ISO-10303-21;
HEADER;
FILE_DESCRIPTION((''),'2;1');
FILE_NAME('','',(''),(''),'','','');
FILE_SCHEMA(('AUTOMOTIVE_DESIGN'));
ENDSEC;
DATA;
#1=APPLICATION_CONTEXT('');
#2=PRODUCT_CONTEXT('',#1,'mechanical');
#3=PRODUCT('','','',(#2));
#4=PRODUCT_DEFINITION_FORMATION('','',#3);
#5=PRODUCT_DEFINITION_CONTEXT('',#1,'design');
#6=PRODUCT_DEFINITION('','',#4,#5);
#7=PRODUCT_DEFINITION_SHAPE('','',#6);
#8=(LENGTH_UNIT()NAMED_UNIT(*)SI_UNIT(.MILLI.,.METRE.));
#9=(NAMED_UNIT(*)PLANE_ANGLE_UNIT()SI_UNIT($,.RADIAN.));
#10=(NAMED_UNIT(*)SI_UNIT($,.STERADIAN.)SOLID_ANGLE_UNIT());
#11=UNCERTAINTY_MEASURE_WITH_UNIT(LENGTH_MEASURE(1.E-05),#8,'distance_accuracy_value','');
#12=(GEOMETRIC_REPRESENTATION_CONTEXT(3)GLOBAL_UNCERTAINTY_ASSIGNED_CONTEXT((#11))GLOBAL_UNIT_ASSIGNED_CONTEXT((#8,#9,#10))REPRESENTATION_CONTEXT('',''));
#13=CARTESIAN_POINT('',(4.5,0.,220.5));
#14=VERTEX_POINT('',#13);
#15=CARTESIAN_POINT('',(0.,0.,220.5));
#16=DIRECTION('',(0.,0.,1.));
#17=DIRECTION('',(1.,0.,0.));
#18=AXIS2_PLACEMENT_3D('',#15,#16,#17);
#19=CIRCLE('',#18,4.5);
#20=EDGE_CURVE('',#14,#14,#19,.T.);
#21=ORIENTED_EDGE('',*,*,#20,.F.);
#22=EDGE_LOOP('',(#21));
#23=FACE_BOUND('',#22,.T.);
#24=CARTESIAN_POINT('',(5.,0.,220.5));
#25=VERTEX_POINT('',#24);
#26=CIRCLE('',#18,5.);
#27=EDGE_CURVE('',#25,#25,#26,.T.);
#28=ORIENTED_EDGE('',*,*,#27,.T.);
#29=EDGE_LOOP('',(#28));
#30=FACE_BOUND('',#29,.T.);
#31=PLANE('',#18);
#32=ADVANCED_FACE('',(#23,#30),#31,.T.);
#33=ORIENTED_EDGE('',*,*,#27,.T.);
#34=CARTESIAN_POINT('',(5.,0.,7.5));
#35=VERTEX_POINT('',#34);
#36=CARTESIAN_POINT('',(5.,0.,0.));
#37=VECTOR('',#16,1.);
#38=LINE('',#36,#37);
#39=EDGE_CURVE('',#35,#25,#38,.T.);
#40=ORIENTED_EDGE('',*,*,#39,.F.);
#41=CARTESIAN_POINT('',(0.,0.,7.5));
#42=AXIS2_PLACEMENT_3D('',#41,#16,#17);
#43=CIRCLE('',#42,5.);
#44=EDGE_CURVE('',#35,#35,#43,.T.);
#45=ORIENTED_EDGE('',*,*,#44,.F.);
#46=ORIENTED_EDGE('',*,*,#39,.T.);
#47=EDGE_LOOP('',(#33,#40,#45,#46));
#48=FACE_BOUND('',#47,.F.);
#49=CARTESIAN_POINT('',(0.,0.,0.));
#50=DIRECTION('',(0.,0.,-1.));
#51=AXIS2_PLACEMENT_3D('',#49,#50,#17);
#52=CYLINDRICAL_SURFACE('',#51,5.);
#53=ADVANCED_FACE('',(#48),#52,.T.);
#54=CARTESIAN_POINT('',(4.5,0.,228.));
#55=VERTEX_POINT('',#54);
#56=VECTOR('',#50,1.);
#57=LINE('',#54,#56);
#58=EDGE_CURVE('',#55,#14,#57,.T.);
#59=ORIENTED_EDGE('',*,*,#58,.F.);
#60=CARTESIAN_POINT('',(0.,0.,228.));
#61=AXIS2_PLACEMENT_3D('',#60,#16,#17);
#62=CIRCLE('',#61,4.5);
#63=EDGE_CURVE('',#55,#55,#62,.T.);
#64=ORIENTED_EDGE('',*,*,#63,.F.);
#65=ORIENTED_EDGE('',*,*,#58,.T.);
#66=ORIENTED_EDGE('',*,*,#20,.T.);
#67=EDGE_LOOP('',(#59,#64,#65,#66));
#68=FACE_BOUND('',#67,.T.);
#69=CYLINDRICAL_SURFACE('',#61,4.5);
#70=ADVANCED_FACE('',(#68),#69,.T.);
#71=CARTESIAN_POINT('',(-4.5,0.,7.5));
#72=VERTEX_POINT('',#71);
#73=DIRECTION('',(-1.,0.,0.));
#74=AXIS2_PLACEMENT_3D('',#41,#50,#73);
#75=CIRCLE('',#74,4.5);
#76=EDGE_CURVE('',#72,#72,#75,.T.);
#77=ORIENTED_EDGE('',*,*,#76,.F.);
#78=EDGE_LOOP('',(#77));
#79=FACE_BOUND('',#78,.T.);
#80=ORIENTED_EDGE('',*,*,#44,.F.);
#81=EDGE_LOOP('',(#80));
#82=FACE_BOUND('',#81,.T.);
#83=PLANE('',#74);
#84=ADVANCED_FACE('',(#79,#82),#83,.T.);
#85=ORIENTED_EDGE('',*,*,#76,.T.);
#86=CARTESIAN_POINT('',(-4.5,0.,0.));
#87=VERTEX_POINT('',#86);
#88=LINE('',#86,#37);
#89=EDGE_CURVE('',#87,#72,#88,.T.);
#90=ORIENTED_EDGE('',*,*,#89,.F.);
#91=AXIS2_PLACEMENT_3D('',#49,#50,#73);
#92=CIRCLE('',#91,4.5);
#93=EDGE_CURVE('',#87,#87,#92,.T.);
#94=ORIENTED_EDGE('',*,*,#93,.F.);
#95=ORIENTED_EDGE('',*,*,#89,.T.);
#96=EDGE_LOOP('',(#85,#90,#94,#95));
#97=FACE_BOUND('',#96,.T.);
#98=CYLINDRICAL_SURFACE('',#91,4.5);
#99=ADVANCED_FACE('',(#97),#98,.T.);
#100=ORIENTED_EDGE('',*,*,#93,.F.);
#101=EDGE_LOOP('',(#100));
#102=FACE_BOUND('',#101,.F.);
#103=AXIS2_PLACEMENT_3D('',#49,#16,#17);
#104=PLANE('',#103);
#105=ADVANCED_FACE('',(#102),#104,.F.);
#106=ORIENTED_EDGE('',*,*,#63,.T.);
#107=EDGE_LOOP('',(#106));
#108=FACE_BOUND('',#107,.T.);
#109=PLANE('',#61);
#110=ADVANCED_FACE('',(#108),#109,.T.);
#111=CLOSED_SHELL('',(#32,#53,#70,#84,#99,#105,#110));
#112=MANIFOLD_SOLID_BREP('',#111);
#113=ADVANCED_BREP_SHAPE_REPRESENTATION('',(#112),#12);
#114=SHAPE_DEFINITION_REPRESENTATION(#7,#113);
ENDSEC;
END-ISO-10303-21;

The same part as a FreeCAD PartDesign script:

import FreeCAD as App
import Part
import Sketcher

V = App.Vector
Q = App.Units.Quantity

doc = App.newDocument("Part")
body = doc.addObject("PartDesign::Body", "Body")

# Sketch on XY plane
sketch1 = body.newObject("Sketcher::SketchObject", "Sketch")
sketch1.AttachmentSupport = (doc.getObject("XY_Plane"), [""])
sketch1.MapMode = "FlatFace"
sketch1.addGeometry(Part.Circle(V(0, 0, 0), V(0, 0, 1), 5), False)
sketch1.addConstraint(Sketcher.Constraint("Coincident", 0, 3, -1, 1))
sketch1.addConstraint(Sketcher.Constraint("Diameter", 0, Q("10 mm")))
pad1 = body.newObject("PartDesign::Pad", "Pad")
pad1.Profile = sketch1
pad1.Length = 228

# Sketch on XY plane
sketch2 = body.newObject("Sketcher::SketchObject", "Sketch001")
sketch2.AttachmentSupport = (doc.getObject("XY_Plane"), [""])
sketch2.MapMode = "FlatFace"
sketch2.AttachmentOffset = App.Placement(V(0, 0, 228), App.Rotation())
sketch2.addGeometry(Part.Circle(V(0, 0, 0), V(0, 0, 1), 5), False)
sketch2.addGeometry(Part.Circle(V(0, 0, 0), V(0, 0, 1), 4.5), False)
sketch2.addConstraint(Sketcher.Constraint("Coincident", 0, 3, -1, 1))
sketch2.addConstraint(Sketcher.Constraint("Coincident", 1, 3, -1, 1))
sketch2.addConstraint(Sketcher.Constraint("Diameter", 1, Q("9 mm")))
sketch2.addConstraint(Sketcher.Constraint("Diameter", 0, Q("10 mm")))
pocket1 = body.newObject("PartDesign::Pocket", "Pocket")
pocket1.Profile = sketch2
pocket1.Length = 7.5

# Sketch on XY plane
sketch3 = body.newObject("Sketcher::SketchObject", "Sketch002")
sketch3.AttachmentSupport = (doc.getObject("XY_Plane"), [""])
sketch3.MapMode = "FlatFace"
sketch3.addGeometry(Part.Circle(V(0, 0, 0), V(0, 0, 1), 5), False)
sketch3.addGeometry(Part.Circle(V(0, 0, 0), V(0, 0, 1), 4.5), False)
sketch3.addConstraint(Sketcher.Constraint("Coincident", 0, 3, -1, 1))
sketch3.addConstraint(Sketcher.Constraint("Coincident", 1, 3, -1, 1))
sketch3.addConstraint(Sketcher.Constraint("Diameter", 0, Q("10 mm")))
sketch3.addConstraint(Sketcher.Constraint("Diameter", 1, Q("9 mm")))
pocket2 = body.newObject("PartDesign::Pocket", "Pocket001")
pocket2.Profile = sketch3
pocket2.Length = 7.5
pocket2.Reversed = True

doc.recompute()
